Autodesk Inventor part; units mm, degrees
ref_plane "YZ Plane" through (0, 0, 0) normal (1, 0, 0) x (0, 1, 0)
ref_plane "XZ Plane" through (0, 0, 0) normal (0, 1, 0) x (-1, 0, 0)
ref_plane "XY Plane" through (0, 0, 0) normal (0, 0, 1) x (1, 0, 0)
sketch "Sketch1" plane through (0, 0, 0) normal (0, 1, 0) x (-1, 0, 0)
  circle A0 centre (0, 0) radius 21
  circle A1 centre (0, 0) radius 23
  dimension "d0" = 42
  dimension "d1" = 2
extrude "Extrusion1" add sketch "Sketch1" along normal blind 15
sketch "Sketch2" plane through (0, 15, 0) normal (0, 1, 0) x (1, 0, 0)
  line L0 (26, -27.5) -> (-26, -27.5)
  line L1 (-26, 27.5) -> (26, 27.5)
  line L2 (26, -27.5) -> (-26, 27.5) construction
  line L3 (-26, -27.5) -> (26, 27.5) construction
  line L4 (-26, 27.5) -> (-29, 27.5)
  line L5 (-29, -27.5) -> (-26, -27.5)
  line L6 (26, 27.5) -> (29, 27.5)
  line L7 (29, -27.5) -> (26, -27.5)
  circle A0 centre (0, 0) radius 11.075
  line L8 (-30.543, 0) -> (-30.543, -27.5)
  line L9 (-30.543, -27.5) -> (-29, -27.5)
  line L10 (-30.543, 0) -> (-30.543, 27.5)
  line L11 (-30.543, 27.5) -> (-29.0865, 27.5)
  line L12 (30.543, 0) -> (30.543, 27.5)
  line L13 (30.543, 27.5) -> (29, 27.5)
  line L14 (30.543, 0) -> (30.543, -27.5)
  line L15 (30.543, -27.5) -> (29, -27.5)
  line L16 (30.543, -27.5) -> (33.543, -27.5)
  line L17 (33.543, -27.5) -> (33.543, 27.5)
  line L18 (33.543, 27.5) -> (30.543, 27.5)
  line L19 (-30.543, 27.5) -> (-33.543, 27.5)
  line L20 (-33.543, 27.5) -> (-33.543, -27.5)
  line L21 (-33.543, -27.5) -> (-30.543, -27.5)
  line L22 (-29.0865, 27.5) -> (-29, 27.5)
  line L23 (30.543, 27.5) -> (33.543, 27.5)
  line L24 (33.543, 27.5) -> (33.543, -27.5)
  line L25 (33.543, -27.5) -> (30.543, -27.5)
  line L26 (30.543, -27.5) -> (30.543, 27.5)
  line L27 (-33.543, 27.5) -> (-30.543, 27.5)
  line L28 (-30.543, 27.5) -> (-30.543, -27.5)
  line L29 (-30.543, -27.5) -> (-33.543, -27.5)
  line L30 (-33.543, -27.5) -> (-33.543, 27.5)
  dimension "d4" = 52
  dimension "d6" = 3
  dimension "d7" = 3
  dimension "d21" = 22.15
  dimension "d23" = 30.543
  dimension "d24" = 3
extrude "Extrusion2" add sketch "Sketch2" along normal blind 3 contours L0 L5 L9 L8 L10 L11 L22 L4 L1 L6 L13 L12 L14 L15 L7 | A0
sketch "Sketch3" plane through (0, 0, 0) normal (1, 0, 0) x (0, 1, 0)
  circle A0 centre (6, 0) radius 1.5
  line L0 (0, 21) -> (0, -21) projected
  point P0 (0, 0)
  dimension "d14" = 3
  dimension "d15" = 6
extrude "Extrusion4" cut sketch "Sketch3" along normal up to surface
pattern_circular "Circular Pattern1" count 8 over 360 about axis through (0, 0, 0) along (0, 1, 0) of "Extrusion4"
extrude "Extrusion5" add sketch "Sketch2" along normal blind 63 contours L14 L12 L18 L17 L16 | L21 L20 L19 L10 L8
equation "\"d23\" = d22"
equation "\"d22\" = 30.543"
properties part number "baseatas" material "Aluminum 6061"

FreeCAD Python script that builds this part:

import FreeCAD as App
import Part
import Sketcher
Q = App.Units.Quantity

doc = App.newDocument("Part")
body = doc.addObject("PartDesign::Body", "Body")

# Sketch on XZ plane
sketch1 = doc.addObject("Sketcher::SketchObject", "Sketch")
body.addObject(sketch1)
sketch1.AttachmentSupport = (doc.XZ_Plane, [""])
sketch1.MapMode = "FlatFace"
sketch1.addGeometry([
    Part.Circle(App.Vector(0, 0, 0), App.Vector(0, 0, 1), 23),
    Part.Circle(App.Vector(0, 0, 0), App.Vector(0, 0, 1), 21),
], False)
sketch1.addConstraint([
    Sketcher.Constraint("Coincident", 0, 3, -1, 1),
    Sketcher.Constraint("Coincident", 1, 3, -1, 1),
    Sketcher.Constraint("Diameter", 1, Q("42 mm")),
    Sketcher.Constraint("Diameter", 0, Q("46 mm")),
])
pad1 = doc.addObject("PartDesign::Pad", "Pad")
body.addObject(pad1)
pad1.Profile = sketch1
pad1.Length = 15
pad1.Reversed = True

# Sketch on XZ plane
sketch2 = doc.addObject("Sketcher::SketchObject", "Sketch001")
body.addObject(sketch2)
sketch2.AttachmentSupport = (doc.XZ_Plane, [""])
sketch2.MapMode = "FlatFace"
sketch2.AttachmentOffset = App.Placement(App.Vector(0, 0, -15), App.Rotation())
sketch2.addGeometry([
    Part.LineSegment(App.Vector(31, 28, 0), App.Vector(31, -28, 0)),
    Part.LineSegment(App.Vector(31, -28, 0), App.Vector(-31, -28, 0)),
    Part.LineSegment(App.Vector(-31, -28, 0), App.Vector(-31, 28, 0)),
    Part.LineSegment(App.Vector(-31, 28, 0), App.Vector(31, 28, 0)),
], False)
sketch2.addConstraint([
    Sketcher.Constraint("Coincident", 0, 2, 1, 1),
    Sketcher.Constraint("Coincident", 1, 2, 2, 1),
    Sketcher.Constraint("Coincident", 2, 2, 3, 1),
    Sketcher.Constraint("Coincident", 3, 2, 0, 1),
    Sketcher.Constraint("Vertical", 0),
    Sketcher.Constraint("Horizontal", 1),
    Sketcher.Constraint("Vertical", 2),
    Sketcher.Constraint("Horizontal", 3),
    Sketcher.Constraint("Symmetric", 0, 2, 2, 2, -1, 1),
    Sketcher.Constraint("DistanceY", 0, 2, 0, 1, Q("55 mm")),
    Sketcher.Constraint("DistanceX", -1, 1, 0, 2, Q("30.543 mm")),
])
pad2 = doc.addObject("PartDesign::Pad", "Pad001")
body.addObject(pad2)
pad2.Profile = sketch2
pad2.Length = 3
pad2.Reversed = True

# Sketch on YZ plane
sketch3 = doc.addObject("Sketcher::SketchObject", "Sketch002")
body.addObject(sketch3)
sketch3.AttachmentSupport = (doc.YZ_Plane, [""])
sketch3.MapMode = "FlatFace"
sketch3.addGeometry(Part.Circle(App.Vector(6, 0, 0), App.Vector(0, 0, 1), 1.5), False)
sketch3.addConstraint([
    Sketcher.Constraint("PointOnObject", 0, 3, -1),
    Sketcher.Constraint("Diameter", 0, Q("3 mm")),
    Sketcher.Constraint("DistanceX", -1, 1, 0, 3, Q("6 mm")),
])
pocket1 = doc.addObject("PartDesign::Pocket", "Pocket")
body.addObject(pocket1)
pocket1.Profile = sketch3
pocket1.Length = 23
pocket1.Reversed = True
doc.recompute()

polarpattern = doc.addObject("PartDesign::PolarPattern", "PolarPattern")
body.addObject(polarpattern)
polarpattern.Originals = [pocket1]
polarpattern.Axis = (doc.Y_Axis, [""])
polarpattern.Angle = 360
polarpattern.Occurrences = 8
body.Tip = polarpattern

# Sketch on XZ plane
sketch4 = doc.addObject("Sketcher::SketchObject", "Sketch003")
body.addObject(sketch4)
sketch4.AttachmentSupport = (doc.XZ_Plane, [""])
sketch4.MapMode = "FlatFace"
sketch4.AttachmentOffset = App.Placement(App.Vector(0, 0, -15), App.Rotation())
sketch4.addGeometry([
    Part.LineSegment(App.Vector(30.5, -27.5, 0), App.Vector(30.5, 27.5, 0)),  # 0
    Part.LineSegment(App.Vector(30.5, 27.5, 0), App.Vector(33.5, 27.5, 0)),  # 1
    Part.LineSegment(App.Vector(33.5, 27.5, 0), App.Vector(33.5, -27.5, 0)),  # 2
    Part.LineSegment(App.Vector(33.5, -27.5, 0), App.Vector(30.5, -27.5, 0)),  # 3
    Part.LineSegment(App.Vector(-33.5, 27.5, 0), App.Vector(-30.5, 27.5, 0)),  # 4
    Part.LineSegment(App.Vector(-30.5, 27.5, 0), App.Vector(-30.5, -27.5, 0)),  # 5
    Part.LineSegment(App.Vector(-30.5, -27.5, 0), App.Vector(-33.5, -27.5, 0)),  # 6
    Part.LineSegment(App.Vector(-33.5, -27.5, 0), App.Vector(-33.5, 27.5, 0)),  # 7
], False)
sketch4.addConstraint([
    Sketcher.Constraint("Coincident", 0, 2, 1, 1),
    Sketcher.Constraint("Coincident", 1, 2, 2, 1),
    Sketcher.Constraint("Coincident", 2, 2, 3, 1),
    Sketcher.Constraint("Coincident", 3, 2, 0, 1),
    Sketcher.Constraint("Coincident", 4, 2, 5, 1),
    Sketcher.Constraint("Coincident", 5, 2, 6, 1),
    Sketcher.Constraint("Coincident", 6, 2, 7, 1),
    Sketcher.Constraint("Coincident", 7, 2, 4, 1),
    Sketcher.Constraint("Vertical", 0),
    Sketcher.Constraint("Horizontal", 1),
    Sketcher.Constraint("Vertical", 2),
    Sketcher.Constraint("Horizontal", 3),
    Sketcher.Constraint("Horizontal", 4),
    Sketcher.Constraint("Vertical", 5),
    Sketcher.Constraint("Horizontal", 6),
    Sketcher.Constraint("Vertical", 7),
    Sketcher.Constraint("Symmetric", 3, 2, 4, 2, -1, 1),
    Sketcher.Constraint("Symmetric", 1, 2, 6, 2, -1, 1),
    Sketcher.Constraint("Horizontal", 1, 2, 4, 2),
    Sketcher.Constraint("DistanceX", 1, 1, 1, 2, Q("3 mm")),
    Sketcher.Constraint("DistanceY", 0, 1, 0, 2, Q("55 mm")),
    Sketcher.Constraint("DistanceX", -1, 1, 0, 2, Q("30.543 mm")),
])
pad3 = doc.addObject("PartDesign::Pad", "Pad002")
body.addObject(pad3)
pad3.Profile = sketch4
pad3.Length = 63
pad3.Reversed = True

doc.recompute()
